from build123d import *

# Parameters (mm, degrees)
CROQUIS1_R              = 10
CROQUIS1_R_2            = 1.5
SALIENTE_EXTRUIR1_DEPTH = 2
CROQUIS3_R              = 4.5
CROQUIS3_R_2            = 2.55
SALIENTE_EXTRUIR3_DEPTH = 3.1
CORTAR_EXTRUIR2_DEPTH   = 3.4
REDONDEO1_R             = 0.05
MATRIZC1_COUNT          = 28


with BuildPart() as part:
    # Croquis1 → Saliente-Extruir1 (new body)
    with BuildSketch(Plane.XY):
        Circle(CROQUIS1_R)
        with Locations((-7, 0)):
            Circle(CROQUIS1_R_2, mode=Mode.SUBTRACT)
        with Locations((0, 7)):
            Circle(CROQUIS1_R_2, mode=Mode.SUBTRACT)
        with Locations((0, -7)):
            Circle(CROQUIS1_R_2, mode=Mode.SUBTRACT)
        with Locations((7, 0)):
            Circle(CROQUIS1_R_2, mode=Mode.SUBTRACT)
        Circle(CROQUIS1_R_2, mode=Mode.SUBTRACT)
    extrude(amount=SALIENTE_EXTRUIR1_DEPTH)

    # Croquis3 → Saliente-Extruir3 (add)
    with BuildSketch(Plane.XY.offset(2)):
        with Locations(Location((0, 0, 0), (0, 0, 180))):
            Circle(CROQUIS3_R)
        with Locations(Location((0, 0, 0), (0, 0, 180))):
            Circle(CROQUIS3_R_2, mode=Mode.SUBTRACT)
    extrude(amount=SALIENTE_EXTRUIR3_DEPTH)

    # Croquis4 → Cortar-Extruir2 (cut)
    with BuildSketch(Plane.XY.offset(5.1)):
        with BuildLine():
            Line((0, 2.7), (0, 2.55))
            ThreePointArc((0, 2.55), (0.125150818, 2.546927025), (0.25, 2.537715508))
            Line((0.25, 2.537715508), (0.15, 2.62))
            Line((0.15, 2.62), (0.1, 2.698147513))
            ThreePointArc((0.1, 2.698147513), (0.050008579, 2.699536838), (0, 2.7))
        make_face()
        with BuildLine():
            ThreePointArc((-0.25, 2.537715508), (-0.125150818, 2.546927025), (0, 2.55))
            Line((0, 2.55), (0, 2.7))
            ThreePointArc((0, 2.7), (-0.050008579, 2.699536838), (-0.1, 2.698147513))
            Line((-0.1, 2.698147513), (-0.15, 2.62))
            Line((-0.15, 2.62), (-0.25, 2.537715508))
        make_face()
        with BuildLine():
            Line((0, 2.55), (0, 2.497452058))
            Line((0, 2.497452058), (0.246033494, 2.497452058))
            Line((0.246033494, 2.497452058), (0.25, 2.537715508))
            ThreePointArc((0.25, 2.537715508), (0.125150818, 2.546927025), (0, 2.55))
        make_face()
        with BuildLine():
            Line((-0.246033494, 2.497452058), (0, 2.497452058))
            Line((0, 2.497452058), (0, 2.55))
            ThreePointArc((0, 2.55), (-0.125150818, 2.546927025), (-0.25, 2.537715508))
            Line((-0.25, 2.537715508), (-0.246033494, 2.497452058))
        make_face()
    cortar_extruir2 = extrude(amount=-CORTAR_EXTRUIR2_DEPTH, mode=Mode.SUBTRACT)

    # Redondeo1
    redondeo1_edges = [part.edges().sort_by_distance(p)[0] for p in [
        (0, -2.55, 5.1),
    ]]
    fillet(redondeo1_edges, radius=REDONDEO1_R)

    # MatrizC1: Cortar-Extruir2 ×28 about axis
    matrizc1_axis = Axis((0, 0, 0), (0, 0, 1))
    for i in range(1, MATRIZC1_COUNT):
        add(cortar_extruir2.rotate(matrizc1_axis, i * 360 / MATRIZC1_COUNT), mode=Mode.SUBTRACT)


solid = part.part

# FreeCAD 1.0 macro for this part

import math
import FreeCAD as App
import Part
import Sketcher

V = App.Vector
Q = App.Units.Quantity


def edges_at(feature, points):
    """Names of the edges that pass closest to the given points."""
    edges = feature.Shape.Edges
    near = lambda p: min(range(len(edges)), key=lambda i: edges[i].distToShape(Part.Vertex(*p))[0])
    return sorted({f"Edge{near(p) + 1}" for p in points})

doc = App.newDocument("Part")
body = doc.addObject("PartDesign::Body", "Body")

# Sketch on XY plane
sketch1 = doc.addObject("Sketcher::SketchObject", "Sketch")
body.addObject(sketch1)
sketch1.AttachmentSupport = (doc.XY_Plane, [""])
sketch1.MapMode = "FlatFace"
sketch1.addGeometry([
    Part.Circle(V(0, 0, 0), V(0, 0, 1), 10),  # 0
    Part.Circle(V(0, -7, 0), V(0, 0, 1), 1.5),  # 1
    Part.Circle(V(-7, 0, 0), V(0, 0, 1), 1.5),  # 2
    Part.Circle(V(0, 0, 0), V(0, 0, 1), 1.5),  # 3
    Part.Circle(V(7, 0, 0), V(0, 0, 1), 1.5),  # 4
    Part.Circle(V(0, 7, 0), V(0, 0, 1), 1.5),  # 5
], False)
sketch1.addConstraint([
    Sketcher.Constraint("Coincident", 0, 3, -1, 1),
    Sketcher.Constraint("Coincident", 3, 3, -1, 1),
    Sketcher.Constraint("Equal", 1, 2),
    Sketcher.Constraint("Equal", 2, 3),
    Sketcher.Constraint("Equal", 3, 4),
    Sketcher.Constraint("Equal", 4, 5),
    Sketcher.Constraint("Symmetric", 2, 3, 4, 3, -1, 1),
    Sketcher.Constraint("Symmetric", 1, 3, 5, 3, -1, 1),
    Sketcher.Constraint("PointOnObject", 1, 3, -2),
    Sketcher.Constraint("PointOnObject", 2, 3, -1),
    Sketcher.Constraint("Diameter", 0, Q("20 mm")),
    Sketcher.Constraint("Diameter", 1, Q("3 mm")),
    Sketcher.Constraint("DistanceY", 1, 3, -1, 1, Q("7 mm")),
    Sketcher.Constraint("DistanceX", 2, 3, -1, 1, Q("7 mm")),
])
pad1 = doc.addObject("PartDesign::Pad", "Pad")
body.addObject(pad1)
pad1.Profile = sketch1
pad1.Length = 2

# Sketch on XY plane
sketch2 = doc.addObject("Sketcher::SketchObject", "Sketch001")
body.addObject(sketch2)
sketch2.AttachmentSupport = (doc.XY_Plane, [""])
sketch2.MapMode = "FlatFace"
sketch2.AttachmentOffset = App.Placement(V(0, 0, 2), App.Rotation())
sketch2.addGeometry([
    Part.Circle(V(0, 0, 0), V(0, 0, 1), 4.5),
    Part.Circle(V(0, 0, 0), V(0, 0, 1), 2.5),
], False)
sketch2.addConstraint([
    Sketcher.Constraint("Coincident", 0, 3, -1, 1),
    Sketcher.Constraint("Coincident", 1, 3, -1, 1),
    Sketcher.Constraint("Diameter", 0, Q("9 mm")),
    Sketcher.Constraint("Diameter", 1, Q("5.1 mm")),
])
pad2 = doc.addObject("PartDesign::Pad", "Pad001")
body.addObject(pad2)
pad2.Profile = sketch2
pad2.Length = 3.1

# Sketch on XY plane
sketch3 = doc.addObject("Sketcher::SketchObject", "Sketch002")
body.addObject(sketch3)
sketch3.AttachmentSupport = (doc.XY_Plane, [""])
sketch3.MapMode = "FlatFace"
sketch3.AttachmentOffset = App.Placement(V(0, 0, 5.1), App.Rotation())
sketch3.addGeometry([
    Part.LineSegment(V(0.25, 2.538, 0), V(0.15, 2.62, 0)),  # 0
    Part.LineSegment(V(0.15, 2.62, 0), V(0.1, 2.698, 0)),  # 1
    Part.ArcOfCircle(Part.Circle(V(0, 0, 0), V(0, 0, 1), 2.7), math.radians(87.88), math.radians(90)),  # 2
    Part.ArcOfCircle(Part.Circle(V(0, 0, 0), V(0, 0, 1), 2.7), math.radians(90), math.radians(92.12)),  # 3
    Part.LineSegment(V(-0.1, 2.698, 0), V(-0.15, 2.62, 0)),  # 4
    Part.LineSegment(V(-0.15, 2.62, 0), V(-0.25, 2.538, 0)),  # 5
    Part.LineSegment(V(-0.25, 2.538, 0), V(-0.246, 2.497, 0)),  # 6
    Part.LineSegment(V(-0.246, 2.497, 0), V(0.246, 2.497, 0)),  # 7
    Part.LineSegment(V(0.246, 2.497, 0), V(0.25, 2.538, 0)),  # 8
], False)
sketch3.addConstraint([
    Sketcher.Constraint("Coincident", 0, 2, 1, 1),
    Sketcher.Constraint("Coincident", 1, 2, 2, 1),
    Sketcher.Constraint("Tangent", 2, 2, 3, 1),
    Sketcher.Constraint("Coincident", 3, 2, 4, 1),
    Sketcher.Constraint("Coincident", 4, 2, 5, 1),
    Sketcher.Constraint("Coincident", 5, 2, 6, 1),
    Sketcher.Constraint("Coincident", 6, 2, 7, 1),
    Sketcher.Constraint("Coincident", 7, 2, 8, 1),
    Sketcher.Constraint("Coincident", 8, 2, 0, 1),
    Sketcher.Constraint("Horizontal", 7),
    Sketcher.Constraint("Coincident", 2, 3, -1, 1),
    Sketcher.Constraint("Equal", 2, 3),
    Sketcher.Constraint("Symmetric", 0, 2, 4, 2, -2),
    Sketcher.Constraint("Symmetric", 5, 2, 8, 2, -2),
    Sketcher.Constraint("PointOnObject", 2, 2, -2),
    Sketcher.Constraint("Horizontal", 1, 2, 3, 2),
    Sketcher.Constraint("Equal", 6, 8),
    Sketcher.Constraint("DistanceX", -1, 1, 1, 2, Q("0.1 mm")),
    Sketcher.Constraint("DistanceY", -1, 1, 2, 2, Q("2.7 mm")),
    Sketcher.Constraint("DistanceX", 4, 2, 0, 2, Q("0.3 mm")),
    Sketcher.Constraint("DistanceX", 5, 2, 4, 2, Q("0.1 mm")),
    Sketcher.Constraint("DistanceY", -1, 1, 0, 2, Q("2.62 mm")),
    Sketcher.Constraint("Distance", 0, Q("0.129502 mm")),
    Sketcher.Constraint("Distance", 6, Q("0.040458 mm")),
    Sketcher.Constraint("DistanceX", 7, 1, 7, 2, Q("0.492067 mm")),
])
pocket1 = doc.addObject("PartDesign::Pocket", "Pocket")
body.addObject(pocket1)
pocket1.Profile = sketch3
pocket1.Length = 3.4
doc.recompute()

fillet = doc.addObject("PartDesign::Fillet", "Fillet")
body.addObject(fillet)
fillet.Base = (pocket1, edges_at(pocket1, [(0, -2.55, 5.1)]))
fillet.Radius = 0.05
doc.recompute()

polarpattern = doc.addObject("PartDesign::PolarPattern", "PolarPattern")
body.addObject(polarpattern)
polarpattern.Originals = [pocket1]
polarpattern.Axis = (doc.Z_Axis, [""])
polarpattern.Angle = 360
polarpattern.Occurrences = 28
body.Tip = polarpattern

doc.recompute()
